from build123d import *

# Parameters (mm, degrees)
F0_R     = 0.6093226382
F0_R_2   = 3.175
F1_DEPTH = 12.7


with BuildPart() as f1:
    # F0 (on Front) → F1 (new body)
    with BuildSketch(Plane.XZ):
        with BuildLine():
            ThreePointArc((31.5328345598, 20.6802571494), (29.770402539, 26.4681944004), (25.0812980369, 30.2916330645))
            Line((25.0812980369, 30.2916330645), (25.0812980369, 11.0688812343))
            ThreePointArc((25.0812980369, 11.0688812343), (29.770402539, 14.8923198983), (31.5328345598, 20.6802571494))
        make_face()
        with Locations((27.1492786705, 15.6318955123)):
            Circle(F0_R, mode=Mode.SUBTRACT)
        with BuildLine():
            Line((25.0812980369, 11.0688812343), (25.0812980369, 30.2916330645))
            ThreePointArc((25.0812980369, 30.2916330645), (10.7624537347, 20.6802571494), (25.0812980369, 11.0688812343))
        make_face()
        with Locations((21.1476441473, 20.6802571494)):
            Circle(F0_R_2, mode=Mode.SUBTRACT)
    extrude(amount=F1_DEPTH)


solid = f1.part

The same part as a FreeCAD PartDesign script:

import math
import FreeCAD as App
import Part
import Sketcher

V = App.Vector
Q = App.Units.Quantity

doc = App.newDocument("Part")
body = doc.addObject("PartDesign::Body", "Body")

sketch1 = body.newObject("Sketcher::SketchObject", "Sketch")
sketch1.AttachmentSupport = (doc.getObject("XZ_Plane"), [""])
sketch1.MapMode = "FlatFace"
sketch1.addGeometry([
    Part.ArcOfCircle(Part.Circle(V(21.1, 20.7, 0), V(0, 0, 1), 10.4), math.radians(0), math.radians(68)),
    Part.ArcOfCircle(Part.Circle(V(21.1, 20.7, 0), V(0, 0, 1), 10.4), math.radians(68), math.radians(292)),
    Part.ArcOfCircle(Part.Circle(V(21.1, 20.7, 0), V(0, 0, 1), 10.4), math.radians(-68), math.radians(0)),
    Part.Circle(V(27.1, 15.6, 0), V(0, 0, 1), 0.6),
    Part.Circle(V(21.1, 20.7, 0), V(0, 0, 1), 3.2),
], False)
sketch1.addConstraint([
    Sketcher.Constraint("Tangent", 0, 2, 1, 1),
    Sketcher.Constraint("Tangent", 1, 2, 2, 1),
    Sketcher.Constraint("Tangent", 2, 2, 0, 1),
    Sketcher.Constraint("Coincident", 4, 3, 0, 3),
    Sketcher.Constraint("Horizontal", 4, 3, 2, 2),
    Sketcher.Constraint("Vertical", 0, 2, 1, 2),
    Sketcher.Constraint("Diameter", 4, Q("0.25 in")),
    Sketcher.Constraint("Radius", 0, Q("10.38519 mm")),
    Sketcher.Constraint("Diameter", 3, Q("1.218645 mm")),
    Sketcher.Constraint("DistanceX", -1, 1, 0, 2, Q("25.081298 mm")),
    Sketcher.Constraint("DistanceX", -1, 1, 3, 3, Q("27.149279 mm")),
    Sketcher.Constraint("DistanceY", -1, 1, 1, 2, Q("11.068881 mm")),
    Sketcher.Constraint("DistanceY", 3, 3, 0, 3, Q("5.048362 mm")),
    Sketcher.Constraint("DistanceX", -1, 1, 0, 3, Q("21.147644 mm")),
])
pad1 = body.newObject("PartDesign::Pad", "Pad")
pad1.Profile = sketch1
pad1.Length = Q("0.5 in")

doc.recompute()
